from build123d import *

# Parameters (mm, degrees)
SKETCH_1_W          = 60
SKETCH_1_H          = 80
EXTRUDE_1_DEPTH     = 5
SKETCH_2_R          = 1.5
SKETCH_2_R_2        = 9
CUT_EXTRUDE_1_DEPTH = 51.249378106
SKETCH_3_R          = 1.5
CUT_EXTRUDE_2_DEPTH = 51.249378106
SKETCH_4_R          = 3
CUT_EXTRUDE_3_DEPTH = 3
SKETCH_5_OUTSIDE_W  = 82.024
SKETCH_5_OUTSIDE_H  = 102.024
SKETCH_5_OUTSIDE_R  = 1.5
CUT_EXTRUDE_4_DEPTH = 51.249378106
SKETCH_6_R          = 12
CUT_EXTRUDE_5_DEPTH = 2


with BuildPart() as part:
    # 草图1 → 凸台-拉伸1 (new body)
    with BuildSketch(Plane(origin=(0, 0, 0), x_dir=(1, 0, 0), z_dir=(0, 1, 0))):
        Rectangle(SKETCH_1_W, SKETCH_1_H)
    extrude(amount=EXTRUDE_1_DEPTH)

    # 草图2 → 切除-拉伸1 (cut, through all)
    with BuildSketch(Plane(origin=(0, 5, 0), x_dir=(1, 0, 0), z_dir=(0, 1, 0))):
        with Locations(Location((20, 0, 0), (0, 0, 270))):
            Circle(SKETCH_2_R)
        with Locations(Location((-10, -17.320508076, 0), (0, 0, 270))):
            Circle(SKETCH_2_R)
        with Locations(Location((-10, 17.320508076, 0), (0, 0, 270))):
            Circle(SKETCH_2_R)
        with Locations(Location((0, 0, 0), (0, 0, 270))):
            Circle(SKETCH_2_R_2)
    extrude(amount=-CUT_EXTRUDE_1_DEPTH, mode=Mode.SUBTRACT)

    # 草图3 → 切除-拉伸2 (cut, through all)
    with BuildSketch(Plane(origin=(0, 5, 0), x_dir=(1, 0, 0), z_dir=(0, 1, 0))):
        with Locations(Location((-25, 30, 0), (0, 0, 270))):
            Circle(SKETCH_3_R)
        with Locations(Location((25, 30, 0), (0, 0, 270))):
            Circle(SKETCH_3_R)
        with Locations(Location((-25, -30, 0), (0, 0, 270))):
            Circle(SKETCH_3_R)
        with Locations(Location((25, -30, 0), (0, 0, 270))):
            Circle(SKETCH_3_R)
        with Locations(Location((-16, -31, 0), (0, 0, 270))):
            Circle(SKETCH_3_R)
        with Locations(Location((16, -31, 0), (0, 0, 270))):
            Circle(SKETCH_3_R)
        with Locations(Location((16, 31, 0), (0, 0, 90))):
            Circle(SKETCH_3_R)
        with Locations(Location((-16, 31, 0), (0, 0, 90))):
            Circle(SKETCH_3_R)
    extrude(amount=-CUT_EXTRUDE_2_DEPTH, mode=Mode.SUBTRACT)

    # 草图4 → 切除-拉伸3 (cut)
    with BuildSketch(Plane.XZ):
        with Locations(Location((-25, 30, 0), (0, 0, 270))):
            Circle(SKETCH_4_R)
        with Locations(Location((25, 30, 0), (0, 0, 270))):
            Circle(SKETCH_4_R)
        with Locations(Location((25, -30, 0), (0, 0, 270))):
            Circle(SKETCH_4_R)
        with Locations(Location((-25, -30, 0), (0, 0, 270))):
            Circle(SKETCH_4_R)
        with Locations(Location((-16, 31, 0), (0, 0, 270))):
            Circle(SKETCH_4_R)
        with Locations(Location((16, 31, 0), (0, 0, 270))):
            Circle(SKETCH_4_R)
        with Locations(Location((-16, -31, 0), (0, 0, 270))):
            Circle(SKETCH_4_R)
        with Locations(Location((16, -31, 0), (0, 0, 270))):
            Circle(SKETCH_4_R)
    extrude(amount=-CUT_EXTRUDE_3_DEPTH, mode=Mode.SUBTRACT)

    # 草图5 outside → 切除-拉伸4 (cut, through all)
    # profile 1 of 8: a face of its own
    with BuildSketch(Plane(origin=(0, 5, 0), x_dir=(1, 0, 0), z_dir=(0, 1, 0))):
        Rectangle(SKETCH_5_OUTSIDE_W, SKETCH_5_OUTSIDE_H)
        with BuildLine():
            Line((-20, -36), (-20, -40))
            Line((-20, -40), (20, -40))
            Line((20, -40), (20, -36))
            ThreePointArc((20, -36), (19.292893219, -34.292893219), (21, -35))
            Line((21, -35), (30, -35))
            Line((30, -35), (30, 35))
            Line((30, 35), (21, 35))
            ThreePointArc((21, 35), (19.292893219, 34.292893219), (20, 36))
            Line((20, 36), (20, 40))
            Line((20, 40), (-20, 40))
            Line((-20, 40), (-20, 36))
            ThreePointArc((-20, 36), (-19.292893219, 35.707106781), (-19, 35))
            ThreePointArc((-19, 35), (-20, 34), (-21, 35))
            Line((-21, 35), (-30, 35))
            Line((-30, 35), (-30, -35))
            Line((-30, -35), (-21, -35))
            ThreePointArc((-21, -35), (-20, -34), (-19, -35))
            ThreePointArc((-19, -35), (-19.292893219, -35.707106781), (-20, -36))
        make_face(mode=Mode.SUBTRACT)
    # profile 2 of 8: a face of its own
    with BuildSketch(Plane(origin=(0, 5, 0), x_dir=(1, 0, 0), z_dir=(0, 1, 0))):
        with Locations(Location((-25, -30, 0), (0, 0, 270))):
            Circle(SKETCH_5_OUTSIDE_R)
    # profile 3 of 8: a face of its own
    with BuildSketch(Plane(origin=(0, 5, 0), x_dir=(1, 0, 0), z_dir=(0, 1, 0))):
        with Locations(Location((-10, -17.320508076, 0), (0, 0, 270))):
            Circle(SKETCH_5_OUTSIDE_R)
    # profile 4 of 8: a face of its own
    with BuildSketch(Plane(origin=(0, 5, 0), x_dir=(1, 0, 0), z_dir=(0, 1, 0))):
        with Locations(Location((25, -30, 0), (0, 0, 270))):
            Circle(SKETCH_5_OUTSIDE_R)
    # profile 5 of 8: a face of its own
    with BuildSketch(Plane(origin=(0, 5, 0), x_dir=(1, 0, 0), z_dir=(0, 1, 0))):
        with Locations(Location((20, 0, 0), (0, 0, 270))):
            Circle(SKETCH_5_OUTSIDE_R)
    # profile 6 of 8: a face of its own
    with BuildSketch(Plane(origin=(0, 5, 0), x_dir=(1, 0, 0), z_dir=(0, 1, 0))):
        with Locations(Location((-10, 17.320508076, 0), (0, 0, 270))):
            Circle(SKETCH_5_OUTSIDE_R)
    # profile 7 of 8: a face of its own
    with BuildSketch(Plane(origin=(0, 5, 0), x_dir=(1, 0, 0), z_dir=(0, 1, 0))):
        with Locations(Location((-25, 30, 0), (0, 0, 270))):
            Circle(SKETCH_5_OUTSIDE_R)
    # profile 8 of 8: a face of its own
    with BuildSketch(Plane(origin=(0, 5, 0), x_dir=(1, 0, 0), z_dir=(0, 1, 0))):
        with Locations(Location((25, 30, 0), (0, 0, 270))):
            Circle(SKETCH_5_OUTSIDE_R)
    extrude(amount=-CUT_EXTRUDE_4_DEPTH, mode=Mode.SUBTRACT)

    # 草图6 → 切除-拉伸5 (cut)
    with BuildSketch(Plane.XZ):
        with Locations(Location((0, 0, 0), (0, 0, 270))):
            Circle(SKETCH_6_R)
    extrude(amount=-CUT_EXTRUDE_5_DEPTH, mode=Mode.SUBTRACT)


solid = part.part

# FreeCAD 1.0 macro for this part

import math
import FreeCAD as App
import Part
import Sketcher
from FreeCAD import Vector
Q = App.Units.Quantity

doc = App.newDocument("Part")
body = doc.addObject("PartDesign::Body", "Body")

# Sketch on XZ plane
sketch1 = doc.addObject("Sketcher::SketchObject", "Sketch")
body.addObject(sketch1)
sketch1.AttachmentSupport = (doc.XZ_Plane, [""])
sketch1.MapMode = "FlatFace"
sketch1.addGeometry([
    Part.LineSegment(Vector(-30, -40, 0), Vector(-30, 40, 0)),
    Part.LineSegment(Vector(-30, 40, 0), Vector(30, 40, 0)),
    Part.LineSegment(Vector(30, 40, 0), Vector(30, -40, 0)),
    Part.LineSegment(Vector(30, -40, 0), Vector(-30, -40, 0)),
], False)
sketch1.addConstraint([
    Sketcher.Constraint("Coincident", 0, 2, 1, 1),
    Sketcher.Constraint("Coincident", 1, 2, 2, 1),
    Sketcher.Constraint("Coincident", 2, 2, 3, 1),
    Sketcher.Constraint("Coincident", 3, 2, 0, 1),
    Sketcher.Constraint("Vertical", 0),
    Sketcher.Constraint("Horizontal", 1),
    Sketcher.Constraint("Vertical", 2),
    Sketcher.Constraint("Horizontal", 3),
    Sketcher.Constraint("Symmetric", 0, 2, 2, 2, -1, 1),
    Sketcher.Constraint("DistanceX", 1, 1, 1, 2, Q("60 mm")),
    Sketcher.Constraint("DistanceY", 0, 1, 0, 2, Q("80 mm")),
])
pad1 = doc.addObject("PartDesign::Pad", "Pad")
body.addObject(pad1)
pad1.Profile = sketch1
pad1.Length = 5
pad1.Reversed = True

# Sketch on XZ plane
sketch2 = doc.addObject("Sketcher::SketchObject", "Sketch001")
body.addObject(sketch2)
sketch2.AttachmentSupport = (doc.XZ_Plane, [""])
sketch2.MapMode = "FlatFace"
sketch2.AttachmentOffset = App.Placement(Vector(0, 0, -5), App.Rotation())
sketch2.addGeometry([
    Part.Circle(Vector(20, 0, 0), Vector(0, 0, 1), 1.5),
    Part.Circle(Vector(-10, 17.3, 0), Vector(0, 0, 1), 1.5),
    Part.Circle(Vector(-10, -17.3, 0), Vector(0, 0, 1), 1.5),
    Part.Circle(Vector(0, 0, 0), Vector(0, 0, 1), 9),
], False)
sketch2.addConstraint([
    Sketcher.Constraint("Coincident", 3, 3, -1, 1),
    Sketcher.Constraint("Equal", 0, 1),
    Sketcher.Constraint("Equal", 1, 2),
    Sketcher.Constraint("Symmetric", 1, 3, 2, 3, -1),
    Sketcher.Constraint("PointOnObject", 0, 3, -1),
    Sketcher.Constraint("Diameter", 0, Q("3 mm")),
    Sketcher.Constraint("Diameter", 3, Q("18 mm")),
    Sketcher.Constraint("DistanceX", -1, 1, 0, 3, Q("20 mm")),
    Sketcher.Constraint("DistanceX", 1, 3, -1, 1, Q("10 mm")),
    Sketcher.Constraint("DistanceY", -1, 1, 1, 3, Q("17.320508 mm")),
])
pocket1 = doc.addObject("PartDesign::Pocket", "Pocket")
body.addObject(pocket1)
pocket1.Profile = sketch2
pocket1.Type = "ThroughAll"
pocket1.Reversed = True

# Sketch on XZ plane
sketch3 = doc.addObject("Sketcher::SketchObject", "Sketch002")
body.addObject(sketch3)
sketch3.AttachmentSupport = (doc.XZ_Plane, [""])
sketch3.MapMode = "FlatFace"
sketch3.AttachmentOffset = App.Placement(Vector(0, 0, -5), App.Rotation())
sketch3.addGeometry([
    Part.Circle(Vector(-25, -30, 0), Vector(0, 0, 1), 1.5),  # 0
    Part.Circle(Vector(25, -30, 0), Vector(0, 0, 1), 1.5),  # 1
    Part.Circle(Vector(-25, 30, 0), Vector(0, 0, 1), 1.5),  # 2
    Part.Circle(Vector(25, 30, 0), Vector(0, 0, 1), 1.5),  # 3
    Part.Circle(Vector(-16, 31, 0), Vector(0, 0, 1), 1.5),  # 4
    Part.Circle(Vector(16, 31, 0), Vector(0, 0, 1), 1.5),  # 5
    Part.Circle(Vector(16, -31, 0), Vector(0, 0, 1), 1.5),  # 6
    Part.Circle(Vector(-16, -31, 0), Vector(0, 0, 1), 1.5),  # 7
], False)
sketch3.addConstraint([
    Sketcher.Constraint("Equal", 0, 1),
    Sketcher.Constraint("Equal", 1, 2),
    Sketcher.Constraint("Equal", 2, 3),
    Sketcher.Constraint("Equal", 3, 4),
    Sketcher.Constraint("Equal", 4, 5),
    Sketcher.Constraint("Equal", 5, 6),
    Sketcher.Constraint("Equal", 6, 7),
    Sketcher.Constraint("Symmetric", 1, 3, 2, 3, -1, 1),
    Sketcher.Constraint("Symmetric", 0, 3, 3, 3, -1, 1),
    Sketcher.Constraint("Symmetric", 4, 3, 6, 3, -1, 1),
    Sketcher.Constraint("Symmetric", 5, 3, 7, 3, -1, 1),
    Sketcher.Constraint("Symmetric", 0, 3, 1, 3, -2),
    Sketcher.Constraint("Symmetric", 4, 3, 5, 3, -2),
    Sketcher.Constraint("Diameter", 0, Q("3 mm")),
    Sketcher.Constraint("DistanceX", 0, 3, -1, 1, Q("25 mm")),
    Sketcher.Constraint("DistanceY", 0, 3, -1, 1, Q("30 mm")),
    Sketcher.Constraint("DistanceX", 4, 3, -1, 1, Q("16 mm")),
    Sketcher.Constraint("DistanceY", -1, 1, 4, 3, Q("31 mm")),
])
pocket2 = doc.addObject("PartDesign::Pocket", "Pocket001")
body.addObject(pocket2)
pocket2.Profile = sketch3
pocket2.Type = "ThroughAll"
pocket2.Reversed = True

# Sketch on XZ plane
sketch4 = doc.addObject("Sketcher::SketchObject", "Sketch003")
body.addObject(sketch4)
sketch4.AttachmentSupport = (doc.XZ_Plane, [""])
sketch4.MapMode = "FlatFace"
sketch4.addGeometry([
    Part.Circle(Vector(-25, 30, 0), Vector(0, 0, 1), 3),  # 0
    Part.Circle(Vector(25, 30, 0), Vector(0, 0, 1), 3),  # 1
    Part.Circle(Vector(25, -30, 0), Vector(0, 0, 1), 3),  # 2
    Part.Circle(Vector(-25, -30, 0), Vector(0, 0, 1), 3),  # 3
    Part.Circle(Vector(-16, 31, 0), Vector(0, 0, 1), 3),  # 4
    Part.Circle(Vector(16, 31, 0), Vector(0, 0, 1), 3),  # 5
    Part.Circle(Vector(-16, -31, 0), Vector(0, 0, 1), 3),  # 6
    Part.Circle(Vector(16, -31, 0), Vector(0, 0, 1), 3),  # 7
], False)
sketch4.addConstraint([
    Sketcher.Constraint("Equal", 0, 1),
    Sketcher.Constraint("Equal", 1, 2),
    Sketcher.Constraint("Equal", 2, 3),
    Sketcher.Constraint("Equal", 3, 4),
    Sketcher.Constraint("Equal", 4, 5),
    Sketcher.Constraint("Equal", 5, 6),
    Sketcher.Constraint("Equal", 6, 7),
    Sketcher.Constraint("Symmetric", 0, 3, 2, 3, -1, 1),
    Sketcher.Constraint("Symmetric", 1, 3, 3, 3, -1, 1),
    Sketcher.Constraint("Symmetric", 5, 3, 6, 3, -1, 1),
    Sketcher.Constraint("Symmetric", 4, 3, 7, 3, -1, 1),
    Sketcher.Constraint("Symmetric", 0, 3, 1, 3, -2),
    Sketcher.Constraint("Symmetric", 4, 3, 5, 3, -2),
    Sketcher.Constraint("Diameter", 0, Q("6 mm")),
    Sketcher.Constraint("DistanceX", 0, 3, -1, 1, Q("25 mm")),
    Sketcher.Constraint("DistanceY", -1, 1, 0, 3, Q("30 mm")),
    Sketcher.Constraint("DistanceX", 4, 3, -1, 1, Q("16 mm")),
    Sketcher.Constraint("DistanceY", -1, 1, 4, 3, Q("31 mm")),
])
pocket3 = doc.addObject("PartDesign::Pocket", "Pocket002")
body.addObject(pocket3)
pocket3.Profile = sketch4
pocket3.Length = 3

# Sketch on XZ plane
sketch5 = doc.addObject("Sketcher::SketchObject", "Sketch004")
body.addObject(sketch5)
sketch5.AttachmentSupport = (doc.XZ_Plane, [""])
sketch5.MapMode = "FlatFace"
sketch5.AttachmentOffset = App.Placement(Vector(0, 0, -5), App.Rotation())
sketch5.addGeometry([
    Part.LineSegment(Vector(-41, -51, 0), Vector(-41, 51, 0)),  # 0
    Part.LineSegment(Vector(-41, 51, 0), Vector(41, 51, 0)),  # 1
    Part.LineSegment(Vector(41, 51, 0), Vector(41, -51, 0)),  # 2
    Part.LineSegment(Vector(41, -51, 0), Vector(-41, -51, 0)),  # 3
    Part.LineSegment(Vector(-20, 40, 0), Vector(-20, 36, 0)),  # 4
    Part.ArcOfCircle(Part.Circle(Vector(-20, 35, 0), Vector(0, 0, 1), 1), math.radians(0), math.radians(90)),  # 5
    Part.ArcOfCircle(Part.Circle(Vector(-20, 35, 0), Vector(0, 0, 1), 1), math.radians(180), math.radians(360)),  # 6
    Part.LineSegment(Vector(-21, 35, 0), Vector(-30, 35, 0)),  # 7
    Part.LineSegment(Vector(-30, 35, 0), Vector(-30, -35, 0)),  # 8
    Part.LineSegment(Vector(-30, -35, 0), Vector(-21, -35, 0)),  # 9
    Part.ArcOfCircle(Part.Circle(Vector(-20, -35, 0), Vector(0, 0, 1), 1), math.radians(0), math.radians(180)),  # 10
    Part.ArcOfCircle(Part.Circle(Vector(-20, -35, 0), Vector(0, 0, 1), 1), math.radians(-90), math.radians(0)),  # 11
    Part.LineSegment(Vector(-20, -36, 0), Vector(-20, -40, 0)),  # 12
    Part.LineSegment(Vector(-20, -40, 0), Vector(20, -40, 0)),  # 13
    Part.LineSegment(Vector(20, -40, 0), Vector(20, -36, 0)),  # 14
    Part.ArcOfCircle(Part.Circle(Vector(20, -35, 0), Vector(0, 0, 1), 1), math.radians(0), math.radians(270)),  # 15
    Part.LineSegment(Vector(21, -35, 0), Vector(30, -35, 0)),  # 16
    Part.LineSegment(Vector(30, -35, 0), Vector(30, 35, 0)),  # 17
    Part.LineSegment(Vector(30, 35, 0), Vector(21, 35, 0)),  # 18
    Part.ArcOfCircle(Part.Circle(Vector(20, 35, 0), Vector(0, 0, 1), 1), math.radians(90), math.radians(360)),  # 19
    Part.LineSegment(Vector(20, 36, 0), Vector(20, 40, 0)),  # 20
    Part.LineSegment(Vector(20, 40, 0), Vector(-20, 40, 0)),  # 21
    Part.Circle(Vector(-25, 30, 0), Vector(0, 0, 1), 1.5),  # 22
    Part.Circle(Vector(-10, 17.3, 0), Vector(0, 0, 1), 1.5),  # 23
    Part.Circle(Vector(25, 30, 0), Vector(0, 0, 1), 1.5),  # 24
    Part.Circle(Vector(20, 0, 0), Vector(0, 0, 1), 1.5),  # 25
    Part.Circle(Vector(-10, -17.3, 0), Vector(0, 0, 1), 1.5),  # 26
    Part.Circle(Vector(-25, -30, 0), Vector(0, 0, 1), 1.5),  # 27
    Part.Circle(Vector(25, -30, 0), Vector(0, 0, 1), 1.5),  # 28
], False)
sketch5.addConstraint([
    Sketcher.Constraint("Coincident", 0, 2, 1, 1),
    Sketcher.Constraint("Coincident", 1, 2, 2, 1),
    Sketcher.Constraint("Coincident", 2, 2, 3, 1),
    Sketcher.Constraint("Coincident", 3, 2, 0, 1),
    Sketcher.Constraint("Coincident", 4, 2, 5, 2),
    Sketcher.Constraint("Tangent", 5, 1, 6, 2),
    Sketcher.Constraint("Coincident", 6, 1, 7, 1),
    Sketcher.Constraint("Coincident", 7, 2, 8, 1),
    Sketcher.Constraint("Coincident", 8, 2, 9, 1),
    Sketcher.Constraint("Coincident", 9, 2, 10, 2),
    Sketcher.Constraint("Tangent", 10, 1, 11, 2),
    Sketcher.Constraint("Coincident", 11, 1, 12, 1),
    Sketcher.Constraint("Coincident", 12, 2, 13, 1),
    Sketcher.Constraint("Coincident", 13, 2, 14, 1),
    Sketcher.Constraint("Coincident", 14, 2, 15, 2),
    Sketcher.Constraint("Coincident", 15, 1, 16, 1),
    Sketcher.Constraint("Coincident", 16, 2, 17, 1),
    Sketcher.Constraint("Coincident", 17, 2, 18, 1),
    Sketcher.Constraint("Coincident", 18, 2, 19, 2),
    Sketcher.Constraint("Coincident", 19, 1, 20, 1),
    Sketcher.Constraint("Coincident", 20, 2, 21, 1),
    Sketcher.Constraint("Coincident", 21, 2, 4, 1),
    Sketcher.Constraint("Vertical", 0),
    Sketcher.Constraint("Horizontal", 1),
    Sketcher.Constraint("Vertical", 2),
    Sketcher.Constraint("Horizontal", 3),
    Sketcher.Constraint("Vertical", 4),
    Sketcher.Constraint("Horizontal", 7),
    Sketcher.Constraint("Vertical", 8),
    Sketcher.Constraint("Horizontal", 9),
    Sketcher.Constraint("Vertical", 12),
    Sketcher.Constraint("Horizontal", 13),
    Sketcher.Constraint("Vertical", 14),
    Sketcher.Constraint("Horizontal", 16),
    Sketcher.Constraint("Vertical", 17),
    Sketcher.Constraint("Horizontal", 18),
    Sketcher.Constraint("Vertical", 20),
    Sketcher.Constraint("Horizontal", 21),
    Sketcher.Constraint("Equal", 5, 6),
    Sketcher.Constraint("Equal", 6, 10),
    Sketcher.Constraint("Equal", 10, 11),
    Sketcher.Constraint("Equal", 11, 15),
    Sketcher.Constraint("Equal", 15, 19),
    Sketcher.Constraint("Equal", 22, 23),
    Sketcher.Constraint("Equal", 23, 24),
    Sketcher.Constraint("Equal", 24, 25),
    Sketcher.Constraint("Equal", 25, 26),
    Sketcher.Constraint("Equal", 26, 27),
    Sketcher.Constraint("Equal", 27, 28),
    Sketcher.Constraint("Symmetric", 5, 3, 15, 3, -1, 1),
    Sketcher.Constraint("Symmetric", 10, 3, 19, 3, -1, 1),
    Sketcher.Constraint("Symmetric", 24, 3, 27, 3, -1, 1),
    Sketcher.Constraint("Symmetric", 22, 3, 28, 3, -1, 1),
    Sketcher.Constraint("Symmetric", 0, 2, 2, 2, -1, 1),
    Sketcher.Constraint("Symmetric", 7, 2, 16, 2, -1, 1),
    Sketcher.Constraint("Symmetric", 12, 2, 20, 2, -1, 1),
    Sketcher.Constraint("Symmetric", 10, 3, 15, 3, -2),
    Sketcher.Constraint("Symmetric", 22, 3, 24, 3, -2),
    Sketcher.Constraint("Symmetric", 23, 3, 26, 3, -1),
    Sketcher.Constraint("PointOnObject", 25, 3, -1),
    Sketcher.Constraint("Horizontal", 19, 3, 5, 1),
    Sketcher.Constraint("Horizontal", 5, 1, 6, 1),
    Sketcher.Constraint("Horizontal", 15, 3, 8, 2),
    Sketcher.Constraint("Horizontal", 9, 2, 10, 1),
    Sketcher.Constraint("Horizontal", 7, 2, 17, 2),
    Sketcher.Constraint("Vertical", 19, 3, 25, 3),
    Sketcher.Constraint("Vertical", 11, 3, 4, 2),
    Sketcher.Constraint("Vertical", 4, 2, 11, 1),
    Sketcher.Constraint("Vertical", 25, 3, 13, 2),
    Sketcher.Constraint("Diameter", 22, Q("3 mm")),
    Sketcher.Constraint("Radius", 5, Q("1 mm")),
    Sketcher.Constraint("DistanceX", 7, 2, 7, 1, Q("9 mm")),
    Sketcher.Constraint("DistanceX", 13, 1, 13, 2, Q("40 mm")),
    Sketcher.Constraint("DistanceY", 4, 2, 4, 1, Q("4 mm")),
    Sketcher.Constraint("DistanceY", 8, 2, 8, 1, Q("70 mm")),
    Sketcher.Constraint("DistanceX", 22, 3, -1, 1, Q("25 mm")),
    Sketcher.Constraint("DistanceY", -1, 1, 22, 3, Q("30 mm")),
    Sketcher.Constraint("DistanceX", 23, 3, -1, 1, Q("10 mm")),
    Sketcher.Constraint("DistanceX", 1, 1, 1, 2, Q("82.024 mm")),
    Sketcher.Constraint("DistanceY", 0, 1, 0, 2, Q("102.024 mm")),
    Sketcher.Constraint("DistanceY", -1, 1, 23, 3, Q("17.320508 mm")),
])
pocket4 = doc.addObject("PartDesign::Pocket", "Pocket003")
body.addObject(pocket4)
pocket4.Profile = sketch5
pocket4.Length = 51.249378
pocket4.Reversed = True

# Sketch on XZ plane
sketch6 = doc.addObject("Sketcher::SketchObject", "Sketch005")
body.addObject(sketch6)
sketch6.AttachmentSupport = (doc.XZ_Plane, [""])
sketch6.MapMode = "FlatFace"
sketch6.addGeometry(Part.Circle(Vector(0, 0, 0), Vector(0, 0, 1), 12), False)
sketch6.addConstraint([
    Sketcher.Constraint("Coincident", 0, 3, -1, 1),
    Sketcher.Constraint("Diameter", 0, Q("24 mm")),
])
pocket5 = doc.addObject("PartDesign::Pocket", "Pocket004")
body.addObject(pocket5)
pocket5.Profile = sketch6
pocket5.Length = 2

doc.recompute()
